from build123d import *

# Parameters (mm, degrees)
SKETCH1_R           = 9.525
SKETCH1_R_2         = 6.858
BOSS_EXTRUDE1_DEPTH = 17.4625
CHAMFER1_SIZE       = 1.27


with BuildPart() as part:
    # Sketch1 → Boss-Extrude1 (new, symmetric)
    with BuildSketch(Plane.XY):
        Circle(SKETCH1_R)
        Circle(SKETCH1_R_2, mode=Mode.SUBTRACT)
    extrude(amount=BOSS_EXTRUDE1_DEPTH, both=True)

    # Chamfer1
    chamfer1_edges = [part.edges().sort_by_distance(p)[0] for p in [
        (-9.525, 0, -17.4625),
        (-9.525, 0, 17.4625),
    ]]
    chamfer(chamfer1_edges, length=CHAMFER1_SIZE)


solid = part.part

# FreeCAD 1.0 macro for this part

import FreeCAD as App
import Part
import Sketcher

V = App.Vector
Q = App.Units.Quantity


def edges_at(feature, points):
    """Names of the edges that pass closest to the given points."""
    edges = feature.Shape.Edges
    near = lambda p: min(range(len(edges)), key=lambda i: edges[i].distToShape(Part.Vertex(*p))[0])
    return sorted({f"Edge{near(p) + 1}" for p in points})

doc = App.newDocument("Part")
params = doc.addObject("Spreadsheet::Sheet", "Params")
for row, (alias, value) in enumerate([
    ("sketch1_diameter", "0.75 in"),
    ("sketch1_diameter2", "0.54 in"),
    ("pad1_length", "1.375 in"),
    ("chamfer_size", "0.05 in"),
], start=1):
    params.set(f"A{row}", alias)
    params.set(f"B{row}", "=" + value)
    params.setAlias(f"B{row}", alias)

body = doc.addObject("PartDesign::Body", "Body")

# Sketch on XY plane
sketch1 = body.newObject("Sketcher::SketchObject", "Sketch")
sketch1.AttachmentSupport = (doc.getObject("XY_Plane"), [""])
sketch1.MapMode = "FlatFace"
sketch1.addGeometry([
    Part.Circle(V(0, 0, 0), V(0, 0, 1), 10),
    Part.Circle(V(0, 0, 0), V(0, 0, 1), 7),
], False)
sketch1.addConstraint([
    Sketcher.Constraint("Coincident", 0, 3, -1, 1),
    Sketcher.Constraint("Coincident", 1, 3, -1, 1),
    Sketcher.Constraint("Diameter", 0, Q("0.75 in")),
    Sketcher.Constraint("Diameter", 1, Q("0.54 in")),
])
sketch1.setExpression("Constraints[2]", "Params.sketch1_diameter")
sketch1.setExpression("Constraints[3]", "Params.sketch1_diameter2")
pad1 = body.newObject("PartDesign::Pad", "Pad")
pad1.Profile = sketch1
pad1.setExpression("Length", "Params.pad1_length")
pad1.Midplane = True
doc.recompute()

chamfer = body.newObject("PartDesign::Chamfer", "Chamfer")
chamfer.Base = (pad1, edges_at(pad1, [(-9.525, 0, -17.462), (-9.525, 0, 17.462)]))
chamfer.setExpression("Size", "Params.chamfer_size")

doc.recompute()
